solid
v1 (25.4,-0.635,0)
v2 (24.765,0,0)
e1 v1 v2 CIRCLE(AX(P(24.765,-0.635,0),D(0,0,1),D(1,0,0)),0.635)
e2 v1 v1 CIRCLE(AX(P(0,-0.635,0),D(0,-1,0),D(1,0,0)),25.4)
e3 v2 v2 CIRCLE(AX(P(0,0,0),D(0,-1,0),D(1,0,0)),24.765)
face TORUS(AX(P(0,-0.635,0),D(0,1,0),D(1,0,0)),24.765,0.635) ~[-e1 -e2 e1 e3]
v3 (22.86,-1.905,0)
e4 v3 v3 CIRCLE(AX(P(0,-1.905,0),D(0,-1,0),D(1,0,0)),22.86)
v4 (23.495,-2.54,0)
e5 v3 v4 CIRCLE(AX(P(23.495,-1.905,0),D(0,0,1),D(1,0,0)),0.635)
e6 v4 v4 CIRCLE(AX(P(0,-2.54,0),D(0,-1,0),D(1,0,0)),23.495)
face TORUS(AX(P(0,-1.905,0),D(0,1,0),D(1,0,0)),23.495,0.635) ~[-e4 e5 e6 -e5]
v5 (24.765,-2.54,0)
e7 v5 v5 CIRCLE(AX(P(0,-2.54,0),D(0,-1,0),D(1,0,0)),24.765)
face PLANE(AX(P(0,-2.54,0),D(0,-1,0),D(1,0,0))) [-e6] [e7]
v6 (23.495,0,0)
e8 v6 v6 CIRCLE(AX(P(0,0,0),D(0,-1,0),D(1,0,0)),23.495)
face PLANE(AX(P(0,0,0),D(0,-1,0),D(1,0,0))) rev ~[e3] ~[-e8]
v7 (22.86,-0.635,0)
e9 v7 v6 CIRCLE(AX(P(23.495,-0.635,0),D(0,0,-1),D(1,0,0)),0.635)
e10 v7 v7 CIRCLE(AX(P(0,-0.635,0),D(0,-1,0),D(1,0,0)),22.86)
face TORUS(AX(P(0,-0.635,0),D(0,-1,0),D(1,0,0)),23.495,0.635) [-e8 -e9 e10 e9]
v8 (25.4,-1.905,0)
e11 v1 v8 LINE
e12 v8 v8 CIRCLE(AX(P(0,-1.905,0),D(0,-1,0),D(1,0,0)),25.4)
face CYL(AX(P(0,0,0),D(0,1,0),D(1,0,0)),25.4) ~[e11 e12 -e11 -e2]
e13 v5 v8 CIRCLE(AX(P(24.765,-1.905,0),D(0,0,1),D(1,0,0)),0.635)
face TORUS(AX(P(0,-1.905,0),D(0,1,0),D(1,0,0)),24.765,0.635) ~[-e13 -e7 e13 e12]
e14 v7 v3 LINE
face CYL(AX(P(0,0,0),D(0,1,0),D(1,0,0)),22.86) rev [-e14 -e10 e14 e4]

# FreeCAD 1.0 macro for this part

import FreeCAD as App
import Part
import Sketcher

V = App.Vector
Q = App.Units.Quantity


def edges_at(feature, points):
    """Names of the edges that pass closest to the given points."""
    edges = feature.Shape.Edges
    near = lambda p: min(range(len(edges)), key=lambda i: edges[i].distToShape(Part.Vertex(*p))[0])
    return sorted({f"Edge{near(p) + 1}" for p in points})

doc = App.newDocument("Part")
body = doc.addObject("PartDesign::Body", "Body")

# Sketch on XZ plane
sketch1 = body.newObject("Sketcher::SketchObject", "Sketch")
sketch1.AttachmentSupport = (doc.getObject("XZ_Plane"), [""])
sketch1.MapMode = "FlatFace"
sketch1.addGeometry(Part.Circle(V(0, 0, 0), V(0, 0, 1), 25.4), False)
sketch1.addGeometry(Part.Circle(V(0, 0, 0), V(0, 0, 1), 22.86), False)
sketch1.addConstraint(Sketcher.Constraint("Coincident", 0, 3, -1, 1))
sketch1.addConstraint(Sketcher.Constraint("Coincident", 1, 3, -1, 1))
sketch1.addConstraint(Sketcher.Constraint("Diameter", 0, Q("2 in")))
sketch1.addConstraint(Sketcher.Constraint("Diameter", 1, Q("1.8 in")))
pad1 = body.newObject("PartDesign::Pad", "Pad")
pad1.Profile = sketch1
pad1.Length = Q("0.1 in")
doc.recompute()

fillet = body.newObject("PartDesign::Fillet", "Fillet")
fillet.Base = (pad1, edges_at(pad1, [(-22.86, -2.54, 0)]))
fillet.Radius = Q("0.025 in")
doc.recompute()

fillet2 = body.newObject("PartDesign::Fillet", "Fillet001")
fillet2.Base = (fillet, edges_at(fillet, [(-25.4, -2.54, 0)]))
fillet2.Radius = Q("0.025 in")
doc.recompute()

fillet3 = body.newObject("PartDesign::Fillet", "Fillet002")
fillet3.Base = (fillet2, edges_at(fillet2, [(-25.4, 0, 0), (-22.86, 0, 0)]))
fillet3.Radius = Q("0.025 in")

doc.recompute()
